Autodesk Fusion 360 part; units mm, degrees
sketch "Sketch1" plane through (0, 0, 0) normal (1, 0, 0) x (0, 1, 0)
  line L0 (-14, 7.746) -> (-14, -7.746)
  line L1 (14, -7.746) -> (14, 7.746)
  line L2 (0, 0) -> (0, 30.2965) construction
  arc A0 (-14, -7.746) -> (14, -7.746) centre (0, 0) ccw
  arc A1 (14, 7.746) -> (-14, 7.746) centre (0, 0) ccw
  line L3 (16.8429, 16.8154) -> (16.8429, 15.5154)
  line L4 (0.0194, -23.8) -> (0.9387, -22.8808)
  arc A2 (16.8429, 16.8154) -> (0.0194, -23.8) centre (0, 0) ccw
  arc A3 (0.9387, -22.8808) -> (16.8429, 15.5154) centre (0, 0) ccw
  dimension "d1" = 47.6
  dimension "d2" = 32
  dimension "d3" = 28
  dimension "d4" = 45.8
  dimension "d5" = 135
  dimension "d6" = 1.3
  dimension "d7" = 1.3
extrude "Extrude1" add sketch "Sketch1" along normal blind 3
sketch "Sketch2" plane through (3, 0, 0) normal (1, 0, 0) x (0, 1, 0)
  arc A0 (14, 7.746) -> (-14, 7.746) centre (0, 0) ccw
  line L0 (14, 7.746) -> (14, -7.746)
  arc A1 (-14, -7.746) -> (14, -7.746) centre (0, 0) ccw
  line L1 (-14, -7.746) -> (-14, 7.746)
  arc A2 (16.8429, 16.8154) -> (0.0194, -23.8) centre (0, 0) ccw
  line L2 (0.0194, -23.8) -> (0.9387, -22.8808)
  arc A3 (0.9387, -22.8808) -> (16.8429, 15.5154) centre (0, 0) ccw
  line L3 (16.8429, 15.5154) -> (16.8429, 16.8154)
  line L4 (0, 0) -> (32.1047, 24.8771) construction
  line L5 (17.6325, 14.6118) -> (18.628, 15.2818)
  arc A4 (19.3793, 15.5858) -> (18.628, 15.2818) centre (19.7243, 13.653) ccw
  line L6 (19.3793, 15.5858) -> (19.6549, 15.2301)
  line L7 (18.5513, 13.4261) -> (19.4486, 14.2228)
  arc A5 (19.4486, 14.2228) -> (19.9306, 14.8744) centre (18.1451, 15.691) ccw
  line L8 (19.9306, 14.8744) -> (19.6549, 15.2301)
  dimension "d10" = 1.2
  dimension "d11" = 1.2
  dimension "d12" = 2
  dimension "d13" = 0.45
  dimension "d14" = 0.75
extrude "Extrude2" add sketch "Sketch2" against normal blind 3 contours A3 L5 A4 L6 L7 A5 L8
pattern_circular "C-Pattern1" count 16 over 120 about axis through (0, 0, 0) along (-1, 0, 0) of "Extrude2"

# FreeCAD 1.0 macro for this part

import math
import FreeCAD as App
import Part
import Sketcher

V = App.Vector
Q = App.Units.Quantity

doc = App.newDocument("Part")
params = doc.addObject("Spreadsheet::Sheet", "Params")
for row, (alias, value) in enumerate([
    ("sketch1_radius", "16 mm"),
    ("sketch1_radius2", "23.8 mm"),
    ("sketch1_radius3", "22.9 mm"),
    ("sketch1_height", "1.3 mm"),
    ("sketch1_length", "1.3 mm"),
    ("pad1_length", "3 mm"),
    ("sketch2_length", "1.2 mm"),
    ("sketch2_radius", "22.9 mm"),
    ("sketch2_length2", "0.45 mm"),
    ("pad2_length", "3 mm"),
], start=1):
    params.set(f"A{row}", alias)
    params.set(f"B{row}", "=" + value)
    params.setAlias(f"B{row}", alias)

body = doc.addObject("PartDesign::Body", "Body")

sketch1 = doc.addObject("Sketcher::SketchObject", "Sketch")
body.addObject(sketch1)
sketch1.AttachmentSupport = (doc.YZ_Plane, [""])
sketch1.MapMode = "FlatFace"
sketch1.addGeometry([
    Part.LineSegment(V(16.8, 15.5, 0), V(16.8, 16.8, 0)),
    Part.ArcOfCircle(Part.Circle(V(0, 0, 0), V(0, 0, 1), 23.8), math.radians(45), math.radians(270)),
    Part.LineSegment(V(0, -23.8, 0), V(0.9, -22.9, 0)),
    Part.ArcOfCircle(Part.Circle(V(0, 0, 0), V(0, 0, 1), 22.9), math.radians(-88), math.radians(43)),
    Part.LineSegment(V(-14, -7.7, 0), V(-14, 7.7, 0)),
    Part.ArcOfCircle(Part.Circle(V(0, 0, 0), V(0, 0, 1), 16), math.radians(29), math.radians(151)),
    Part.LineSegment(V(14, 7.7, 0), V(14, -7.7, 0)),
    Part.ArcOfCircle(Part.Circle(V(0, 0, 0), V(0, 0, 1), 16), math.radians(-151), math.radians(-29)),
], False)
sketch1.addConstraint([
    Sketcher.Constraint("Coincident", 0, 2, 1, 1),
    Sketcher.Constraint("Coincident", 1, 2, 2, 1),
    Sketcher.Constraint("Coincident", 2, 2, 3, 1),
    Sketcher.Constraint("Coincident", 3, 2, 0, 1),
    Sketcher.Constraint("Coincident", 4, 2, 5, 2),
    Sketcher.Constraint("Coincident", 5, 1, 6, 1),
    Sketcher.Constraint("Coincident", 6, 2, 7, 2),
    Sketcher.Constraint("Coincident", 7, 1, 4, 1),
    Sketcher.Constraint("Vertical", 0),
    Sketcher.Constraint("Vertical", 4),
    Sketcher.Constraint("Vertical", 6),
    Sketcher.Constraint("Coincident", 1, 3, -1, 1),
    Sketcher.Constraint("Coincident", 3, 3, -1, 1),
    Sketcher.Constraint("Coincident", 5, 3, -1, 1),
    Sketcher.Constraint("Coincident", 7, 3, -1, 1),
    Sketcher.Constraint("Equal", 5, 7),
    Sketcher.Constraint("Horizontal", 4, 2, 5, 1),
    Sketcher.Constraint("Radius", 5, 16.0),
    Sketcher.Constraint("Radius", 1, 23.8),
    Sketcher.Constraint("Radius", 3, 22.9),
    Sketcher.Constraint("DistanceY", 0, 1, 0, 2, 1.3),
    Sketcher.Constraint("Distance", 2, 1.3),
    Sketcher.Constraint("DistanceX", 4, 2, -1, 1, 14.0),
    Sketcher.Constraint("DistanceX", -1, 1, 1, 2, 0.0194),
])
sketch1.setExpression("Constraints[17]", "Params.sketch1_radius")
sketch1.setExpression("Constraints[18]", "Params.sketch1_radius2")
sketch1.setExpression("Constraints[19]", "Params.sketch1_radius3")
sketch1.setExpression("Constraints[20]", "Params.sketch1_height")
sketch1.setExpression("Constraints[21]", "Params.sketch1_length")
pad1 = doc.addObject("PartDesign::Pad", "Pad")
body.addObject(pad1)
pad1.Profile = sketch1
pad1.setExpression("Length", "Params.pad1_length")

sketch2 = doc.addObject("Sketcher::SketchObject", "Sketch001")
body.addObject(sketch2)
sketch2.AttachmentSupport = (doc.YZ_Plane, [""])
sketch2.MapMode = "FlatFace"
sketch2.AttachmentOffset = App.Placement(V(0, 0, 3), App.Rotation())
sketch2.addGeometry([
    Part.LineSegment(V(18.63, 15.28, 0), V(17.63, 14.61, 0)),
    Part.ArcOfCircle(Part.Circle(V(0, 0, 0), V(0, 0, 1), 22.9), math.radians(35.89), math.radians(39.65)),
    Part.LineSegment(V(18.55, 13.43, 0), V(19.45, 14.22, 0)),
    Part.ArcOfCircle(Part.Circle(V(18.15, 15.69, 0), V(0, 0, 1), 1.96), math.radians(-48), math.radians(-25)),
    Part.LineSegment(V(19.93, 14.87, 0), V(19.65, 15.23, 0)),
    Part.LineSegment(V(19.65, 15.23, 0), V(19.38, 15.59, 0)),
    Part.ArcOfCircle(Part.Circle(V(19.72, 13.65, 0), V(0, 0, 1), 1.96), math.radians(100), math.radians(124)),
], False)
sketch2.addConstraint([
    Sketcher.Constraint("Coincident", 0, 2, 1, 2),
    Sketcher.Constraint("Coincident", 1, 1, 2, 1),
    Sketcher.Constraint("Tangent", 2, 2, 3, 1),
    Sketcher.Constraint("Coincident", 3, 2, 4, 1),
    Sketcher.Constraint("Coincident", 4, 2, 5, 1),
    Sketcher.Constraint("Coincident", 5, 2, 6, 1),
    Sketcher.Constraint("Tangent", 6, 2, 0, 1),
    Sketcher.Constraint("Coincident", 1, 3, -1, 1),
    Sketcher.Constraint("Equal", 3, 6),
    Sketcher.Constraint("Parallel", 4, 5),
    Sketcher.Constraint("Equal", 0, 2),
    Sketcher.Constraint("Equal", 4, 5),
    Sketcher.Constraint("Distance", 0, 1.2),
    Sketcher.Constraint("Radius", 1, 22.9),
    Sketcher.Constraint("Distance", 4, 0.45),
    Sketcher.Constraint("Angle", 4, Q("127.779 deg")),
    Sketcher.Constraint("Radius", 3, 1.9633),
    Sketcher.Constraint("DistanceY", -1, 1, 4, 2, 15.23),
    Sketcher.Constraint("DistanceY", 0, 2, 6, 2, 0.67),
    Sketcher.Constraint("DistanceX", -1, 1, 3, 3, 18.145),
    Sketcher.Constraint("DistanceY", -1, 1, 3, 3, 15.691),
])
sketch2.setExpression("Constraints[12]", "Params.sketch2_length")
sketch2.setExpression("Constraints[13]", "Params.sketch2_radius")
sketch2.setExpression("Constraints[14]", "Params.sketch2_length2")
pad2 = doc.addObject("PartDesign::Pad", "Pad001")
body.addObject(pad2)
pad2.Profile = sketch2
pad2.setExpression("Length", "Params.pad2_length")
pad2.Reversed = True
doc.recompute()

polarpattern = doc.addObject("PartDesign::PolarPattern", "PolarPattern")
body.addObject(polarpattern)
polarpattern.Originals = [pad2]
polarpattern.Axis = (doc.X_Axis, [""])
polarpattern.Angle = 120
polarpattern.Occurrences = 16
polarpattern.Reversed = True
body.Tip = polarpattern

doc.recompute()
